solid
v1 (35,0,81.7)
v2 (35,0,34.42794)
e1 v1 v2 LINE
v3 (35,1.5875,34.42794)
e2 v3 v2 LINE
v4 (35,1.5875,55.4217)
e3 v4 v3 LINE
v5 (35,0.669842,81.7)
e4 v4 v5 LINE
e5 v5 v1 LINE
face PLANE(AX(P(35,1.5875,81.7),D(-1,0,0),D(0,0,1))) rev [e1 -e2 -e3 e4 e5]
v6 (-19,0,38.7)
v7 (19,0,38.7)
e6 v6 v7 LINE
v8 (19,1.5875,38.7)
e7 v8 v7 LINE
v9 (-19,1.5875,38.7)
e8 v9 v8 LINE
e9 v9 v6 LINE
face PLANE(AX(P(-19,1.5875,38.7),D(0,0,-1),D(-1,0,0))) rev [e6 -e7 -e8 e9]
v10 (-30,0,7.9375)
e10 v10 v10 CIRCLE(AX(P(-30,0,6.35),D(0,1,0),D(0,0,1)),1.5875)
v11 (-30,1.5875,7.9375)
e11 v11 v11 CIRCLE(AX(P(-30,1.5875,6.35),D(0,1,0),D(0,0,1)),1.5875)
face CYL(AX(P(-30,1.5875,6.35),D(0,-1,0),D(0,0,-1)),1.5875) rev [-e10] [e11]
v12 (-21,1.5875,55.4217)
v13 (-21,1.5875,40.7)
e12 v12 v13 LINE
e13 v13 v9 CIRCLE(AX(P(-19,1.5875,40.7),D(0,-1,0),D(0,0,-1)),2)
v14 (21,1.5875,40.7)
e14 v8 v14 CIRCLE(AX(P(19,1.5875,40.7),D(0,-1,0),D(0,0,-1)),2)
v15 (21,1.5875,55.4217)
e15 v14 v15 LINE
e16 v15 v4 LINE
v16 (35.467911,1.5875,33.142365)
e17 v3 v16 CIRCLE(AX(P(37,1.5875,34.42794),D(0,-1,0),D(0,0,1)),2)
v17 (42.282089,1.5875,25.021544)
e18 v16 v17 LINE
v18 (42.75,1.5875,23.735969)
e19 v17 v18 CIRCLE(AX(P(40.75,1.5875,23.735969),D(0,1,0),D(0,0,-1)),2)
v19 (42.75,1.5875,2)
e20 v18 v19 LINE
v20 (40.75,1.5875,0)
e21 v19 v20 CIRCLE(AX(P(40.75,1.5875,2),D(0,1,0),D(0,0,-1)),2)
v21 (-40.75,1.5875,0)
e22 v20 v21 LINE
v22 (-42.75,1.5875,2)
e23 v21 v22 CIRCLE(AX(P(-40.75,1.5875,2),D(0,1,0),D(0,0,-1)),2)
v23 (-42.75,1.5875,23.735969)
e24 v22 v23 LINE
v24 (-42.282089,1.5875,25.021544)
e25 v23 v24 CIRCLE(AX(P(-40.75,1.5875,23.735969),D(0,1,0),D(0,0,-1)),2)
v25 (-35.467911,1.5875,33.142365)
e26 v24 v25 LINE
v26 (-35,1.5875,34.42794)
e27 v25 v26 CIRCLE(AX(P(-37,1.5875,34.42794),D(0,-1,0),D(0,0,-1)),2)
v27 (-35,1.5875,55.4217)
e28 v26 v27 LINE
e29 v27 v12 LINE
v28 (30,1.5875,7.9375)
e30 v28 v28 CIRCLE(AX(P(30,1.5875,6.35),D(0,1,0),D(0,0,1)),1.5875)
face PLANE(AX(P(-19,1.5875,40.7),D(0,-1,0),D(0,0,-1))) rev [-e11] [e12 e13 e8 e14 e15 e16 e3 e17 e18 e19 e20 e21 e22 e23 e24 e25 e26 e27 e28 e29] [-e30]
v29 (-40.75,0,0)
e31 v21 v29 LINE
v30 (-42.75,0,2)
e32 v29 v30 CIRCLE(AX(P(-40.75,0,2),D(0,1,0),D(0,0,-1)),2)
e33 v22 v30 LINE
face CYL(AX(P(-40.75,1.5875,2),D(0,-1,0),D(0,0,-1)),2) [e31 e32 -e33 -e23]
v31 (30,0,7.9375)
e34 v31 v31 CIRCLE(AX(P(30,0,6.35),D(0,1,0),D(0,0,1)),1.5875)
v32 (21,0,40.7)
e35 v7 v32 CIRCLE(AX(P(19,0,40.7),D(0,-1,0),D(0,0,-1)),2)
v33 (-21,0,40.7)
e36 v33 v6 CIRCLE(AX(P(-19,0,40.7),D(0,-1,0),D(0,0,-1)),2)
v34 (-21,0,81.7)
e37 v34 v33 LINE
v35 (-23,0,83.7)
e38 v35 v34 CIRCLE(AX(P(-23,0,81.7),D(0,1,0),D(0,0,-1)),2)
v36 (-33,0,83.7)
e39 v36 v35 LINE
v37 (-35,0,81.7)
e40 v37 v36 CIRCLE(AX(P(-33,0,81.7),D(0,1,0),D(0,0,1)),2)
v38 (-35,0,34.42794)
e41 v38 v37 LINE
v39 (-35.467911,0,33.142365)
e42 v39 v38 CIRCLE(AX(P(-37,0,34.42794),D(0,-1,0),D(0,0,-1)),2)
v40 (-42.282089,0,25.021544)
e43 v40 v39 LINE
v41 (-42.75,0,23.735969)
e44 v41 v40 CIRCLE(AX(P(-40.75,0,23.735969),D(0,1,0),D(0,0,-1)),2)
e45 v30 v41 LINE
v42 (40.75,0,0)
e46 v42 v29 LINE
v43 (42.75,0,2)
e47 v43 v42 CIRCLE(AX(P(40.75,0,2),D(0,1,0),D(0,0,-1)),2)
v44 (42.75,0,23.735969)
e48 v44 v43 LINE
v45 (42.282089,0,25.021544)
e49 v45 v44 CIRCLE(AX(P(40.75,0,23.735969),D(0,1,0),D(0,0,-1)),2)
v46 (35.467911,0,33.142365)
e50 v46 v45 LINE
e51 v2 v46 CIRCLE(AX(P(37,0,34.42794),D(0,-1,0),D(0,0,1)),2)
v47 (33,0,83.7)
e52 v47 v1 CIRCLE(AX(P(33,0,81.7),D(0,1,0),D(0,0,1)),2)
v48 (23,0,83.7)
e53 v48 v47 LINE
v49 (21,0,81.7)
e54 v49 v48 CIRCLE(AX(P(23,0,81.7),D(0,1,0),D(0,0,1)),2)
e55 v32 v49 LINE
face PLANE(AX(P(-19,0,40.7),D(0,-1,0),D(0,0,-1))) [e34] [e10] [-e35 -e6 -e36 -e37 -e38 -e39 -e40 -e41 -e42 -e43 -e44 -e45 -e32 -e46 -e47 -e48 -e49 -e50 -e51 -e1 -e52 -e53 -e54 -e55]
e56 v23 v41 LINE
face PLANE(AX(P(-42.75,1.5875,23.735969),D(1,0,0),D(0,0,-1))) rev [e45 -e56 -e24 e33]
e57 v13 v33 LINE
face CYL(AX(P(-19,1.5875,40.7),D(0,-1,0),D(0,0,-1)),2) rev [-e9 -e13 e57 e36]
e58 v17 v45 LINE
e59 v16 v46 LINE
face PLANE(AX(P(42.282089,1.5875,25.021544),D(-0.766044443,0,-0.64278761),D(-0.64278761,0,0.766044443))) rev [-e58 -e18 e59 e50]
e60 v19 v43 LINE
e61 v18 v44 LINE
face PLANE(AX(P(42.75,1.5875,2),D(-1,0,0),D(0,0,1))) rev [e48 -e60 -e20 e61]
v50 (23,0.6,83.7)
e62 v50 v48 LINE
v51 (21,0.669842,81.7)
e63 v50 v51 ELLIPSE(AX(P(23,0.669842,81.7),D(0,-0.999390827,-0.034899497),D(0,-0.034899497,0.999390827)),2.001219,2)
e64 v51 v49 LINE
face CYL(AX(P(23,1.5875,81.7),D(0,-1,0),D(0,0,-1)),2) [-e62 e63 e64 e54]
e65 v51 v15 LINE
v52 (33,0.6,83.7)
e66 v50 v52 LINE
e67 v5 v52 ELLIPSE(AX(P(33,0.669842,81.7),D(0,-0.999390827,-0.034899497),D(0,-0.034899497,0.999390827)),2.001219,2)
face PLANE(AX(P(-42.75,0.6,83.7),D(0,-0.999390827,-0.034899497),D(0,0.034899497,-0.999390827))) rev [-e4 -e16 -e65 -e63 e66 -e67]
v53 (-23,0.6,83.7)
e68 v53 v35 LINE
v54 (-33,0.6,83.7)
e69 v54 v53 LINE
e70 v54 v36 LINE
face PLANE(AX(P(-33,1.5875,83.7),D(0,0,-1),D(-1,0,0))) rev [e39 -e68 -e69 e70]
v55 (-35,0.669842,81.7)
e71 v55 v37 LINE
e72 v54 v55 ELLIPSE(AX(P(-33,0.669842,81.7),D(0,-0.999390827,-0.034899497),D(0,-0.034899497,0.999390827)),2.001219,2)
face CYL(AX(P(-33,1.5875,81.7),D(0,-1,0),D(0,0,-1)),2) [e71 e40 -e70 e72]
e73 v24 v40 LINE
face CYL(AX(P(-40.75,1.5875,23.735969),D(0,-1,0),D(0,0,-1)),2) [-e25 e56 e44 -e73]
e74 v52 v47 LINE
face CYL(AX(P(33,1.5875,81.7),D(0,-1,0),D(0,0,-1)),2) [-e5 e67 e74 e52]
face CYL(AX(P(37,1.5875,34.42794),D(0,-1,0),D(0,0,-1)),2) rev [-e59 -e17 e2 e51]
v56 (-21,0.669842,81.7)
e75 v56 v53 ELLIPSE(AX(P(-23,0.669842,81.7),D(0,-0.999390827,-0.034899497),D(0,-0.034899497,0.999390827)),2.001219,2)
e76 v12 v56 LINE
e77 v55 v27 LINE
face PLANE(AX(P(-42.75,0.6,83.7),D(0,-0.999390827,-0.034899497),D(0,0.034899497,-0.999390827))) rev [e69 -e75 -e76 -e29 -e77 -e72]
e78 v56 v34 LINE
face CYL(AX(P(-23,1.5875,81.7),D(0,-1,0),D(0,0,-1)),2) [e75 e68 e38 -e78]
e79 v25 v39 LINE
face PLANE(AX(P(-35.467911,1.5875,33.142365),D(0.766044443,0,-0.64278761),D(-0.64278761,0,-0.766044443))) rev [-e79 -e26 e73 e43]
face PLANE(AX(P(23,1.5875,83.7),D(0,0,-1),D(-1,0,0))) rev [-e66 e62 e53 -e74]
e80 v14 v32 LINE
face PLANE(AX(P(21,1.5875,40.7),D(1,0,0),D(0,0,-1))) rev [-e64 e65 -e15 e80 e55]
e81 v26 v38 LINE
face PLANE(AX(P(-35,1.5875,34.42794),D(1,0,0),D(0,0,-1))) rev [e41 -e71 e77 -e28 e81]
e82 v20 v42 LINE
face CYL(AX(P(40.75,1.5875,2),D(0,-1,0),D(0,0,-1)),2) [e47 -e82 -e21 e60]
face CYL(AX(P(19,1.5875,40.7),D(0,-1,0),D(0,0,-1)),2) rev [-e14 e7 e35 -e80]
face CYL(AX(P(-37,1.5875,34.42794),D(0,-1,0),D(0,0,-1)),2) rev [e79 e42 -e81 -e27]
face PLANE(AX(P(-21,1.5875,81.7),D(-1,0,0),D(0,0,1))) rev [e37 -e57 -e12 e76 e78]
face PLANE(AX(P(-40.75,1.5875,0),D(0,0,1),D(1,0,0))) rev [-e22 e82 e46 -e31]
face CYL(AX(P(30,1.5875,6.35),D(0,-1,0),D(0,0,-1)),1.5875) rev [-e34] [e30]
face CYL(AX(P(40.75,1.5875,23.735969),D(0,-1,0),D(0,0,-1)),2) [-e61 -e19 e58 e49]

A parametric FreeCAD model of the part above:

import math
import FreeCAD as App
import Part
import Sketcher

V = App.Vector
Q = App.Units.Quantity

doc = App.newDocument("Part")
params = doc.addObject("Spreadsheet::Sheet", "Params")
for row, (alias, value) in enumerate([
    ("sketch1_radius", "2 mm"),
    ("sketch1_width", "10 mm"),
    ("sketch1_width2", "38 mm"),
    ("sketch1_height", "41 mm"),
    ("sketch1_width3", "81.5 mm"),
    ("pad1_length", "1.5875 mm"),
], start=1):
    params.set(f"A{row}", alias)
    params.set(f"B{row}", "=" + value)
    params.setAlias(f"B{row}", alias)

body = doc.addObject("PartDesign::Body", "Body")

# Sketch on XZ plane
sketch1 = body.newObject("Sketcher::SketchObject", "Sketch")
sketch1.AttachmentSupport = (doc.getObject("XZ_Plane"), [""])
sketch1.MapMode = "FlatFace"
sketch1.addGeometry([
    Part.LineSegment(V(-35, 34.42794, 0), V(-35, 81.7, 0)),  # 0
    Part.ArcOfCircle(Part.Circle(V(-33, 81.7, 0), V(0, 0, 1), 2), math.radians(90), math.radians(180)),  # 1
    Part.LineSegment(V(-33, 83.7, 0), V(-23, 83.7, 0)),  # 2
    Part.ArcOfCircle(Part.Circle(V(-23, 81.7, 0), V(0, 0, 1), 2), math.radians(0), math.radians(90)),  # 3
    Part.LineSegment(V(-21, 81.7, 0), V(-21, 40.7, 0)),  # 4
    Part.ArcOfCircle(Part.Circle(V(-19, 40.7, 0), V(0, 0, 1), 2), math.radians(-180), math.radians(-90)),  # 5
    Part.LineSegment(V(-19, 38.7, 0), V(19, 38.7, 0)),  # 6
    Part.ArcOfCircle(Part.Circle(V(19, 40.7, 0), V(0, 0, 1), 2), math.radians(-90), math.radians(0)),  # 7
    Part.LineSegment(V(21, 40.7, 0), V(21, 81.7, 0)),  # 8
    Part.ArcOfCircle(Part.Circle(V(23, 81.7, 0), V(0, 0, 1), 2), math.radians(90), math.radians(180)),  # 9
    Part.LineSegment(V(23, 83.7, 0), V(33, 83.7, 0)),  # 10
    Part.ArcOfCircle(Part.Circle(V(33, 81.7, 0), V(0, 0, 1), 2), math.radians(0), math.radians(90)),  # 11
    Part.LineSegment(V(35, 81.7, 0), V(35, 34.42794, 0)),  # 12
    Part.ArcOfCircle(Part.Circle(V(37, 34.42794, 0), V(0, 0, 1), 2), math.radians(180), math.radians(220)),  # 13
    Part.LineSegment(V(35.467911, 33.142365, 0), V(42.282089, 25.021544, 0)),  # 14
    Part.ArcOfCircle(Part.Circle(V(40.75, 23.735969, 0), V(0, 0, 1), 2), math.radians(0), math.radians(40)),  # 15
    Part.LineSegment(V(42.75, 23.735969, 0), V(42.75, 2, 0)),  # 16
    Part.ArcOfCircle(Part.Circle(V(40.75, 2, 0), V(0, 0, 1), 2), math.radians(-90), math.radians(0)),  # 17
    Part.LineSegment(V(40.75, 0, 0), V(-40.75, 0, 0)),  # 18
    Part.ArcOfCircle(Part.Circle(V(-40.75, 2, 0), V(0, 0, 1), 2), math.radians(-180), math.radians(-90)),  # 19
    Part.LineSegment(V(-42.75, 2, 0), V(-42.75, 23.735969, 0)),  # 20
    Part.ArcOfCircle(Part.Circle(V(-40.75, 23.735969, 0), V(0, 0, 1), 2), math.radians(140), math.radians(180)),  # 21
    Part.LineSegment(V(-42.282089, 25.021544, 0), V(-35.467911, 33.142365, 0)),  # 22
    Part.ArcOfCircle(Part.Circle(V(-37, 34.42794, 0), V(0, 0, 1), 2), math.radians(-40), math.radians(0)),  # 23
    Part.Circle(V(-30, 6.35, 0), V(0, 0, 1), 1.5875),  # 24
    Part.Circle(V(30, 6.35, 0), V(0, 0, 1), 1.5875),  # 25
], False)
sketch1.addConstraint([
    Sketcher.Constraint("Tangent", 0, 2, 1, 2),
    Sketcher.Constraint("Tangent", 1, 1, 2, 1),
    Sketcher.Constraint("Tangent", 2, 2, 3, 2),
    Sketcher.Constraint("Tangent", 3, 1, 4, 1),
    Sketcher.Constraint("Tangent", 4, 2, 5, 1),
    Sketcher.Constraint("Tangent", 5, 2, 6, 1),
    Sketcher.Constraint("Tangent", 6, 2, 7, 1),
    Sketcher.Constraint("Tangent", 7, 2, 8, 1),
    Sketcher.Constraint("Tangent", 8, 2, 9, 2),
    Sketcher.Constraint("Tangent", 9, 1, 10, 1),
    Sketcher.Constraint("Tangent", 10, 2, 11, 2),
    Sketcher.Constraint("Tangent", 11, 1, 12, 1),
    Sketcher.Constraint("Tangent", 12, 2, 13, 1),
    Sketcher.Constraint("Tangent", 13, 2, 14, 1),
    Sketcher.Constraint("Tangent", 14, 2, 15, 2),
    Sketcher.Constraint("Tangent", 15, 1, 16, 1),
    Sketcher.Constraint("Tangent", 16, 2, 17, 2),
    Sketcher.Constraint("Tangent", 17, 1, 18, 1),
    Sketcher.Constraint("Tangent", 18, 2, 19, 2),
    Sketcher.Constraint("Tangent", 19, 1, 20, 1),
    Sketcher.Constraint("Tangent", 20, 2, 21, 2),
    Sketcher.Constraint("Tangent", 21, 1, 22, 1),
    Sketcher.Constraint("Tangent", 22, 2, 23, 1),
    Sketcher.Constraint("Tangent", 23, 2, 0, 1),
    Sketcher.Constraint("Vertical", 0),
    Sketcher.Constraint("Horizontal", 2),
    Sketcher.Constraint("Vertical", 4),
    Sketcher.Constraint("Horizontal", 6),
    Sketcher.Constraint("Vertical", 8),
    Sketcher.Constraint("Horizontal", 10),
    Sketcher.Constraint("Vertical", 12),
    Sketcher.Constraint("Vertical", 16),
    Sketcher.Constraint("Horizontal", 18),
    Sketcher.Constraint("Vertical", 20),
    Sketcher.Constraint("Equal", 1, 3),
    Sketcher.Constraint("Equal", 3, 5),
    Sketcher.Constraint("Equal", 5, 7),
    Sketcher.Constraint("Equal", 7, 9),
    Sketcher.Constraint("Equal", 9, 11),
    Sketcher.Constraint("Equal", 11, 13),
    Sketcher.Constraint("Equal", 13, 15),
    Sketcher.Constraint("Equal", 15, 17),
    Sketcher.Constraint("Equal", 17, 19),
    Sketcher.Constraint("Equal", 19, 21),
    Sketcher.Constraint("Equal", 21, 23),
    Sketcher.Constraint("Equal", 24, 25),
    Sketcher.Constraint("Symmetric", 17, 1, 18, 2, -1, 1),
    Sketcher.Constraint("Symmetric", 3, 3, 9, 3, -2),
    Sketcher.Constraint("Symmetric", 13, 3, 23, 3, -2),
    Sketcher.Constraint("Symmetric", 24, 3, 25, 3, -2),
    Sketcher.Constraint("Horizontal", 15, 3, 21, 3),
    Sketcher.Constraint("Radius", 1, 2.0),
    Sketcher.Constraint("DistanceX", 2, 1, 2, 2, 10.0),
    Sketcher.Constraint("DistanceX", 6, 1, 6, 2, 38.0),
    Sketcher.Constraint("DistanceY", 4, 2, 4, 1, 41.0),
    Sketcher.Constraint("Angle", 14, Q("-50 deg")),
    Sketcher.Constraint("Diameter", 24, 3.175),
    Sketcher.Constraint("DistanceX", 18, 2, 18, 1, 81.5),
    Sketcher.Constraint("DistanceX", 24, 3, -1, 1, 30.0),
    Sketcher.Constraint("DistanceY", -1, 1, 1, 3, 81.7),
    Sketcher.Constraint("DistanceY", -1, 1, 24, 3, 6.35),
    Sketcher.Constraint("DistanceY", 0, 1, 0, 2, 47.27206),
])
sketch1.setExpression("Constraints[51]", "Params.sketch1_radius")
sketch1.setExpression("Constraints[52]", "Params.sketch1_width")
sketch1.setExpression("Constraints[53]", "Params.sketch1_width2")
sketch1.setExpression("Constraints[54]", "Params.sketch1_height")
sketch1.setExpression("Constraints[57]", "Params.sketch1_width3")
pad1 = body.newObject("PartDesign::Pad", "Pad")
pad1.Profile = sketch1
pad1.setExpression("Length", "Params.pad1_length")
pad1.Reversed = True

# Sketch on YZ plane
sketch2 = body.newObject("Sketcher::SketchObject", "Sketch001")
sketch2.AttachmentSupport = (doc.getObject("YZ_Plane"), [""])
sketch2.MapMode = "FlatFace"
sketch2.AttachmentOffset = App.Placement(V(0, 0, 37), App.Rotation())
sketch2.addGeometry([
    Part.LineSegment(V(1.5875, 55.4217, 0), V(1.5875, 83.7, 0)),
    Part.LineSegment(V(1.5875, 83.7, 0), V(0.6, 83.7, 0)),
    Part.LineSegment(V(0.6, 83.7, 0), V(1.5875, 55.4217, 0)),
], False)
sketch2.addConstraint([
    Sketcher.Constraint("Coincident", 0, 2, 1, 1),
    Sketcher.Constraint("Coincident", 1, 2, 2, 1),
    Sketcher.Constraint("Coincident", 2, 2, 0, 1),
    Sketcher.Constraint("Vertical", 0),
    Sketcher.Constraint("Horizontal", 1),
    Sketcher.Constraint("Angle", 2, Q("-88 deg")),
    Sketcher.Constraint("DistanceY", -1, 1, 0, 2, 83.7),
    Sketcher.Constraint("DistanceX", -1, 1, 1, 2, 0.6),
    Sketcher.Constraint("DistanceX", 1, 2, 1, 1, 0.9875),
])
pocket1 = body.newObject("PartDesign::Pocket", "Pocket")
pocket1.Profile = sketch2
pocket1.Type = "ThroughAll"

doc.recompute()
